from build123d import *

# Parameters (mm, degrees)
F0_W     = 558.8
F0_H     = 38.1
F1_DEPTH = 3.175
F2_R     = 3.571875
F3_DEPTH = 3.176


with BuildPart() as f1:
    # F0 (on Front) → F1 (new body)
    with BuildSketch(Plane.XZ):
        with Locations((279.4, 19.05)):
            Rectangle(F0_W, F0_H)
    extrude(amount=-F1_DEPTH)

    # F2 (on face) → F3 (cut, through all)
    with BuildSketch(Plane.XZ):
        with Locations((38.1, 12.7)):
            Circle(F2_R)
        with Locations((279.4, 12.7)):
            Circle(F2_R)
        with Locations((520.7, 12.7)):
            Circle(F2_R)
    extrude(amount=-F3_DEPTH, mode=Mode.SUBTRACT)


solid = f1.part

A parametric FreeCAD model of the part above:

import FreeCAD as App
import Part
import Sketcher
Q = App.Units.Quantity

doc = App.newDocument("Part")
body = doc.addObject("PartDesign::Body", "Body")

sketch1 = body.newObject("Sketcher::SketchObject", "Sketch")
sketch1.AttachmentSupport = (doc.getObject("XZ_Plane"), [""])
sketch1.MapMode = "FlatFace"
sketch1.addGeometry(Part.LineSegment(App.Vector(0, 38, 0), App.Vector(0, 0, 0)), False)
sketch1.addGeometry(Part.LineSegment(App.Vector(0, 0, 0), App.Vector(559, 0, 0)), False)
sketch1.addGeometry(Part.LineSegment(App.Vector(559, 0, 0), App.Vector(559, 38, 0)), False)
sketch1.addGeometry(Part.LineSegment(App.Vector(559, 38, 0), App.Vector(0, 38, 0)), False)
sketch1.addConstraint(Sketcher.Constraint("Coincident", 0, 2, 1, 1))
sketch1.addConstraint(Sketcher.Constraint("Coincident", 1, 2, 2, 1))
sketch1.addConstraint(Sketcher.Constraint("Coincident", 2, 2, 3, 1))
sketch1.addConstraint(Sketcher.Constraint("Coincident", 3, 2, 0, 1))
sketch1.addConstraint(Sketcher.Constraint("Vertical", 0))
sketch1.addConstraint(Sketcher.Constraint("Horizontal", 1))
sketch1.addConstraint(Sketcher.Constraint("Vertical", 2))
sketch1.addConstraint(Sketcher.Constraint("Horizontal", 3))
sketch1.addConstraint(Sketcher.Constraint("Coincident", 0, 2, -1, 1))
sketch1.addConstraint(Sketcher.Constraint("DistanceX", 1, 1, 1, 2, Q("22 in")))
sketch1.addConstraint(Sketcher.Constraint("DistanceY", 0, 2, 0, 1, Q("1.5 in")))
pad1 = body.newObject("PartDesign::Pad", "Pad")
pad1.Profile = sketch1
pad1.Length = Q("0.125 in")
pad1.Reversed = True

sketch2 = body.newObject("Sketcher::SketchObject", "Sketch001")
sketch2.AttachmentSupport = (doc.getObject("XZ_Plane"), [""])
sketch2.MapMode = "FlatFace"
sketch2.addGeometry(Part.Circle(App.Vector(38.1, 12.7, 0), App.Vector(0, 0, 1), 3.6), False)
sketch2.addGeometry(Part.Circle(App.Vector(279.4, 12.7, 0), App.Vector(0, 0, 1), 3.6), False)
sketch2.addGeometry(Part.Circle(App.Vector(520.7, 12.7, 0), App.Vector(0, 0, 1), 3.6), False)
sketch2.addConstraint(Sketcher.Constraint("Equal", 0, 1))
sketch2.addConstraint(Sketcher.Constraint("Equal", 1, 2))
sketch2.addConstraint(Sketcher.Constraint("Horizontal", 0, 3, 1, 3))
sketch2.addConstraint(Sketcher.Constraint("Horizontal", 1, 3, 2, 3))
sketch2.addConstraint(Sketcher.Constraint("Diameter", 0, Q("0.28125 in")))
sketch2.addConstraint(Sketcher.Constraint("DistanceX", -1, 1, 1, 3, Q("11 in")))
sketch2.addConstraint(Sketcher.Constraint("DistanceX", 0, 3, 2, 3, Q("19 in")))
sketch2.addConstraint(Sketcher.Constraint("DistanceX", -1, 1, 0, 3, Q("1.5 in")))
sketch2.addConstraint(Sketcher.Constraint("DistanceY", -1, 1, 0, 3, Q("0.5 in")))
pocket1 = body.newObject("PartDesign::Pocket", "Pocket")
pocket1.Profile = sketch2
pocket1.Type = "ThroughAll"

doc.recompute()
